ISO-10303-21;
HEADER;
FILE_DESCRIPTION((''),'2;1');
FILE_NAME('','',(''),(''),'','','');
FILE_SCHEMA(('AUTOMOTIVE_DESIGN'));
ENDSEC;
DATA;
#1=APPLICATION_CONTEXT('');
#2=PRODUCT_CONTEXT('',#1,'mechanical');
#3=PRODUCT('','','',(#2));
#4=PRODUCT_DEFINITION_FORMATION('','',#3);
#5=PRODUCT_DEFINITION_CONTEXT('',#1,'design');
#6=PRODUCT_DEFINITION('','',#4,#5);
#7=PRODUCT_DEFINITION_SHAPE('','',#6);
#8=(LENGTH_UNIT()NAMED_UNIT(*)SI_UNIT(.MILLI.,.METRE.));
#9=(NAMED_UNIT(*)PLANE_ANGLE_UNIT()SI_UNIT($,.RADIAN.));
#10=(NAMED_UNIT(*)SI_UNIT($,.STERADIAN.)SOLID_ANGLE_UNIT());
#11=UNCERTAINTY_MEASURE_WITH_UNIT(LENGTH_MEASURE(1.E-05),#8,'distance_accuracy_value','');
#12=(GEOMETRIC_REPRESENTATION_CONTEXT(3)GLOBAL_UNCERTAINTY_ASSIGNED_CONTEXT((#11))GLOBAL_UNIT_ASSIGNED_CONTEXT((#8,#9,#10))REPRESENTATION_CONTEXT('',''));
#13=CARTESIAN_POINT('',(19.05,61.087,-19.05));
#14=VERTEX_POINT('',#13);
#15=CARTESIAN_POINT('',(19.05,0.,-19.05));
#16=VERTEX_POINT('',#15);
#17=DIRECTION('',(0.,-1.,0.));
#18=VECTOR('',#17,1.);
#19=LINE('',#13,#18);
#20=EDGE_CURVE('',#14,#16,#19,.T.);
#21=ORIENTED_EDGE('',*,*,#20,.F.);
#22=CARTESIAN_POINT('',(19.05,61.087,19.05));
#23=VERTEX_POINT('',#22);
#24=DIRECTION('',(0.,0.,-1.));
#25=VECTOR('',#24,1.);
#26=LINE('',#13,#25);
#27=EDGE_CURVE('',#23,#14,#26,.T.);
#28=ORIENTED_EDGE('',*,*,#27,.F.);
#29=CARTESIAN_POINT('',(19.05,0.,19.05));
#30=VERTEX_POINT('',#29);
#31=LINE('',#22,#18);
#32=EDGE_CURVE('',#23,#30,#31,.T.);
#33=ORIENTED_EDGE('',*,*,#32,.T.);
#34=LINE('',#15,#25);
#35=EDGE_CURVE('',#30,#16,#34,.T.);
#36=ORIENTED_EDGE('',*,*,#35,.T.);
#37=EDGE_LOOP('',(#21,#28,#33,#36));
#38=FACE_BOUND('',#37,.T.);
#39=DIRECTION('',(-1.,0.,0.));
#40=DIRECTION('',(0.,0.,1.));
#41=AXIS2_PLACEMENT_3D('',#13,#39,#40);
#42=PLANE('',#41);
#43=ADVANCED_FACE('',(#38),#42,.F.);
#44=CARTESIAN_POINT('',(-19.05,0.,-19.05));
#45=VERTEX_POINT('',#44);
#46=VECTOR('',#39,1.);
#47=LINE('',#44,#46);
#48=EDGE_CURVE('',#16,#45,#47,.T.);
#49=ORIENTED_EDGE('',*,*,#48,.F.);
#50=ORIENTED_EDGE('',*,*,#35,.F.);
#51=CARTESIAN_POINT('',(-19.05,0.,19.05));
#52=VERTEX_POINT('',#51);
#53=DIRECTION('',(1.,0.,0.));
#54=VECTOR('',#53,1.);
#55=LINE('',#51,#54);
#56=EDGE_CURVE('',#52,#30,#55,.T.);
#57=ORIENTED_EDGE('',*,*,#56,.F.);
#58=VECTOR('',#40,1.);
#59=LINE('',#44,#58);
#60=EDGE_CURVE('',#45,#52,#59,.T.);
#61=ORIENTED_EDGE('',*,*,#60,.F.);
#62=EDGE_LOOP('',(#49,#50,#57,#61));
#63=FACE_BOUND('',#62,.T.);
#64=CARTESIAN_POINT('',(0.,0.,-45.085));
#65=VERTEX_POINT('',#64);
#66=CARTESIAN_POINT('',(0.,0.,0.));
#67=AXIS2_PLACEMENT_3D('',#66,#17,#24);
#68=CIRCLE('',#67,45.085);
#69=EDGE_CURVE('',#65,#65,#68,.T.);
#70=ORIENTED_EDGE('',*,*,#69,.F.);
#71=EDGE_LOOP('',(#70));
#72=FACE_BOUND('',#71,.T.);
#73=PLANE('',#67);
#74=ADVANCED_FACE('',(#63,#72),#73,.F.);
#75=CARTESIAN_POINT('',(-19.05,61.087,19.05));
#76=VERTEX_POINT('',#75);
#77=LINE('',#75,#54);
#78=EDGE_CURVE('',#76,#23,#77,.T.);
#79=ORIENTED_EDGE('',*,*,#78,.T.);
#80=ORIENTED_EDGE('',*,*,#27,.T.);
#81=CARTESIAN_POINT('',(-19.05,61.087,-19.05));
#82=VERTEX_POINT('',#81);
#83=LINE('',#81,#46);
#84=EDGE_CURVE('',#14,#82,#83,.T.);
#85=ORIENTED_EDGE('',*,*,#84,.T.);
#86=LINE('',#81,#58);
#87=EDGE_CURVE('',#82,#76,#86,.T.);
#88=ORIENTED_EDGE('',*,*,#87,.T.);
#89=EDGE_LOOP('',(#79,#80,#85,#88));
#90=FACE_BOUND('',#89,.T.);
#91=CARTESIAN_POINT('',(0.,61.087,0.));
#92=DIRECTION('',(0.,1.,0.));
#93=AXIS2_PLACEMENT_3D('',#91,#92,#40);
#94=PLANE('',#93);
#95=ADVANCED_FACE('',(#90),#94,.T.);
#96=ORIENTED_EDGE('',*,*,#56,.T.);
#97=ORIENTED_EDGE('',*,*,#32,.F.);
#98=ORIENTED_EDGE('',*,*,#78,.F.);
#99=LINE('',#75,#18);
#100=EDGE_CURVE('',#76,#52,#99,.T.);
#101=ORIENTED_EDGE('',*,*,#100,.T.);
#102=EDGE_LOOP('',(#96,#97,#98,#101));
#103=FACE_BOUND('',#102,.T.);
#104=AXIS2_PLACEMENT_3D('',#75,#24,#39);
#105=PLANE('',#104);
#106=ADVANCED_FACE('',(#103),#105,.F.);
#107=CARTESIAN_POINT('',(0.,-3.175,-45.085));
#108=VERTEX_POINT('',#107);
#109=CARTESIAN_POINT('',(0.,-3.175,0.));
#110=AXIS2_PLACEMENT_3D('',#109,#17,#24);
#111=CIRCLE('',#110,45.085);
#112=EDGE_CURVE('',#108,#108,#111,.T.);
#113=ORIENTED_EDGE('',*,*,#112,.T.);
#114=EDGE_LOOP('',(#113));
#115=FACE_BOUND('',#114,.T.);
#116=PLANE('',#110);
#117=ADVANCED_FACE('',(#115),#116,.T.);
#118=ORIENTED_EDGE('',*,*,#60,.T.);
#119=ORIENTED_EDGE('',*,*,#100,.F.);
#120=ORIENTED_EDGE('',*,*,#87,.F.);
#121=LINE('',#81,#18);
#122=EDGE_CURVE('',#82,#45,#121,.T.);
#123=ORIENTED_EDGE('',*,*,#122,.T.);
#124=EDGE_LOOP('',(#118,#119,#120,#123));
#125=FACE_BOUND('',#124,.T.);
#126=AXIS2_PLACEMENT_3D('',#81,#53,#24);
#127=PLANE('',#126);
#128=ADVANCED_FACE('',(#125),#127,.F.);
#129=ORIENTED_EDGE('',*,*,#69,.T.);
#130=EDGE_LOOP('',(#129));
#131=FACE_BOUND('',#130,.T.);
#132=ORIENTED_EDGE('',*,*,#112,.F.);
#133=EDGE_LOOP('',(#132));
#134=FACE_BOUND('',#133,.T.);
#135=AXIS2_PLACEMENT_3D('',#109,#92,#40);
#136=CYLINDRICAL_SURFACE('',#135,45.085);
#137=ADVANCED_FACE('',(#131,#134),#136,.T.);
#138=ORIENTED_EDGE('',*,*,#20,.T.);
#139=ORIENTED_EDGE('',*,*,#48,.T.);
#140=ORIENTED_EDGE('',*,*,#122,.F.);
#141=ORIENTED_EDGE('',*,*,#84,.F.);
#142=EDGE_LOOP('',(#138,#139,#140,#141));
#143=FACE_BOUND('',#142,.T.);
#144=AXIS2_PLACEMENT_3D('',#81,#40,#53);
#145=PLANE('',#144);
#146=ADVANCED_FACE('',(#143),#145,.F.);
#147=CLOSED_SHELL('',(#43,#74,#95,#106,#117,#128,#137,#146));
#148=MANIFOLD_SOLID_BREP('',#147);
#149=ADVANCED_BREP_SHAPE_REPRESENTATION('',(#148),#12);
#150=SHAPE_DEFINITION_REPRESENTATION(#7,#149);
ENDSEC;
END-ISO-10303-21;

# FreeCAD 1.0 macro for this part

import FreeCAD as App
import Part
import Sketcher
from FreeCAD import Vector
Q = App.Units.Quantity

doc = App.newDocument("Part")
params = doc.addObject("Spreadsheet::Sheet", "Params")
for row, (alias, value) in enumerate([
    ("sketch1_width", "1.5 in"),
    ("pad1_length", "2.405 in"),
    ("sketch2_diameter", "3.55 in"),
    ("pad2_length", "0.125 in"),
], start=1):
    params.set(f"A{row}", alias)
    params.set(f"B{row}", "=" + value)
    params.setAlias(f"B{row}", alias)

body = doc.addObject("PartDesign::Body", "Body")

sketch1 = doc.addObject("Sketcher::SketchObject", "Sketch")
body.addObject(sketch1)
sketch1.AttachmentSupport = (doc.XZ_Plane, [""])
sketch1.MapMode = "FlatFace"
sketch1.addGeometry([
    Part.LineSegment(Vector(-19, -19, 0), Vector(-19, 19, 0)),
    Part.LineSegment(Vector(-19, 19, 0), Vector(19, 19, 0)),
    Part.LineSegment(Vector(19, 19, 0), Vector(19, -19, 0)),
    Part.LineSegment(Vector(19, -19, 0), Vector(-19, -19, 0)),
], False)
sketch1.addConstraint([
    Sketcher.Constraint("Coincident", 0, 2, 1, 1),
    Sketcher.Constraint("Coincident", 1, 2, 2, 1),
    Sketcher.Constraint("Coincident", 2, 2, 3, 1),
    Sketcher.Constraint("Coincident", 3, 2, 0, 1),
    Sketcher.Constraint("Vertical", 0),
    Sketcher.Constraint("Horizontal", 1),
    Sketcher.Constraint("Vertical", 2),
    Sketcher.Constraint("Horizontal", 3),
    Sketcher.Constraint("Symmetric", 0, 2, 2, 2, -1, 1),
    Sketcher.Constraint("Equal", 3, 0),
    Sketcher.Constraint("DistanceX", 1, 1, 1, 2, Q("1.5 in")),
])
sketch1.setExpression("Constraints[10]", "Params.sketch1_width")
pad1 = doc.addObject("PartDesign::Pad", "Pad")
body.addObject(pad1)
pad1.Profile = sketch1
pad1.setExpression("Length", "Params.pad1_length")
pad1.Reversed = True

sketch2 = doc.addObject("Sketcher::SketchObject", "Sketch001")
body.addObject(sketch2)
sketch2.AttachmentSupport = (doc.XZ_Plane, [""])
sketch2.MapMode = "FlatFace"
sketch2.addGeometry(Part.Circle(Vector(0, 0, 0), Vector(0, 0, 1), 45), False)
sketch2.addConstraint([
    Sketcher.Constraint("Coincident", 0, 3, -1, 1),
    Sketcher.Constraint("Diameter", 0, Q("3.55 in")),
])
sketch2.setExpression("Constraints[1]", "Params.sketch2_diameter")
pad2 = doc.addObject("PartDesign::Pad", "Pad001")
body.addObject(pad2)
pad2.Profile = sketch2
pad2.setExpression("Length", "Params.pad2_length")

doc.recompute()
